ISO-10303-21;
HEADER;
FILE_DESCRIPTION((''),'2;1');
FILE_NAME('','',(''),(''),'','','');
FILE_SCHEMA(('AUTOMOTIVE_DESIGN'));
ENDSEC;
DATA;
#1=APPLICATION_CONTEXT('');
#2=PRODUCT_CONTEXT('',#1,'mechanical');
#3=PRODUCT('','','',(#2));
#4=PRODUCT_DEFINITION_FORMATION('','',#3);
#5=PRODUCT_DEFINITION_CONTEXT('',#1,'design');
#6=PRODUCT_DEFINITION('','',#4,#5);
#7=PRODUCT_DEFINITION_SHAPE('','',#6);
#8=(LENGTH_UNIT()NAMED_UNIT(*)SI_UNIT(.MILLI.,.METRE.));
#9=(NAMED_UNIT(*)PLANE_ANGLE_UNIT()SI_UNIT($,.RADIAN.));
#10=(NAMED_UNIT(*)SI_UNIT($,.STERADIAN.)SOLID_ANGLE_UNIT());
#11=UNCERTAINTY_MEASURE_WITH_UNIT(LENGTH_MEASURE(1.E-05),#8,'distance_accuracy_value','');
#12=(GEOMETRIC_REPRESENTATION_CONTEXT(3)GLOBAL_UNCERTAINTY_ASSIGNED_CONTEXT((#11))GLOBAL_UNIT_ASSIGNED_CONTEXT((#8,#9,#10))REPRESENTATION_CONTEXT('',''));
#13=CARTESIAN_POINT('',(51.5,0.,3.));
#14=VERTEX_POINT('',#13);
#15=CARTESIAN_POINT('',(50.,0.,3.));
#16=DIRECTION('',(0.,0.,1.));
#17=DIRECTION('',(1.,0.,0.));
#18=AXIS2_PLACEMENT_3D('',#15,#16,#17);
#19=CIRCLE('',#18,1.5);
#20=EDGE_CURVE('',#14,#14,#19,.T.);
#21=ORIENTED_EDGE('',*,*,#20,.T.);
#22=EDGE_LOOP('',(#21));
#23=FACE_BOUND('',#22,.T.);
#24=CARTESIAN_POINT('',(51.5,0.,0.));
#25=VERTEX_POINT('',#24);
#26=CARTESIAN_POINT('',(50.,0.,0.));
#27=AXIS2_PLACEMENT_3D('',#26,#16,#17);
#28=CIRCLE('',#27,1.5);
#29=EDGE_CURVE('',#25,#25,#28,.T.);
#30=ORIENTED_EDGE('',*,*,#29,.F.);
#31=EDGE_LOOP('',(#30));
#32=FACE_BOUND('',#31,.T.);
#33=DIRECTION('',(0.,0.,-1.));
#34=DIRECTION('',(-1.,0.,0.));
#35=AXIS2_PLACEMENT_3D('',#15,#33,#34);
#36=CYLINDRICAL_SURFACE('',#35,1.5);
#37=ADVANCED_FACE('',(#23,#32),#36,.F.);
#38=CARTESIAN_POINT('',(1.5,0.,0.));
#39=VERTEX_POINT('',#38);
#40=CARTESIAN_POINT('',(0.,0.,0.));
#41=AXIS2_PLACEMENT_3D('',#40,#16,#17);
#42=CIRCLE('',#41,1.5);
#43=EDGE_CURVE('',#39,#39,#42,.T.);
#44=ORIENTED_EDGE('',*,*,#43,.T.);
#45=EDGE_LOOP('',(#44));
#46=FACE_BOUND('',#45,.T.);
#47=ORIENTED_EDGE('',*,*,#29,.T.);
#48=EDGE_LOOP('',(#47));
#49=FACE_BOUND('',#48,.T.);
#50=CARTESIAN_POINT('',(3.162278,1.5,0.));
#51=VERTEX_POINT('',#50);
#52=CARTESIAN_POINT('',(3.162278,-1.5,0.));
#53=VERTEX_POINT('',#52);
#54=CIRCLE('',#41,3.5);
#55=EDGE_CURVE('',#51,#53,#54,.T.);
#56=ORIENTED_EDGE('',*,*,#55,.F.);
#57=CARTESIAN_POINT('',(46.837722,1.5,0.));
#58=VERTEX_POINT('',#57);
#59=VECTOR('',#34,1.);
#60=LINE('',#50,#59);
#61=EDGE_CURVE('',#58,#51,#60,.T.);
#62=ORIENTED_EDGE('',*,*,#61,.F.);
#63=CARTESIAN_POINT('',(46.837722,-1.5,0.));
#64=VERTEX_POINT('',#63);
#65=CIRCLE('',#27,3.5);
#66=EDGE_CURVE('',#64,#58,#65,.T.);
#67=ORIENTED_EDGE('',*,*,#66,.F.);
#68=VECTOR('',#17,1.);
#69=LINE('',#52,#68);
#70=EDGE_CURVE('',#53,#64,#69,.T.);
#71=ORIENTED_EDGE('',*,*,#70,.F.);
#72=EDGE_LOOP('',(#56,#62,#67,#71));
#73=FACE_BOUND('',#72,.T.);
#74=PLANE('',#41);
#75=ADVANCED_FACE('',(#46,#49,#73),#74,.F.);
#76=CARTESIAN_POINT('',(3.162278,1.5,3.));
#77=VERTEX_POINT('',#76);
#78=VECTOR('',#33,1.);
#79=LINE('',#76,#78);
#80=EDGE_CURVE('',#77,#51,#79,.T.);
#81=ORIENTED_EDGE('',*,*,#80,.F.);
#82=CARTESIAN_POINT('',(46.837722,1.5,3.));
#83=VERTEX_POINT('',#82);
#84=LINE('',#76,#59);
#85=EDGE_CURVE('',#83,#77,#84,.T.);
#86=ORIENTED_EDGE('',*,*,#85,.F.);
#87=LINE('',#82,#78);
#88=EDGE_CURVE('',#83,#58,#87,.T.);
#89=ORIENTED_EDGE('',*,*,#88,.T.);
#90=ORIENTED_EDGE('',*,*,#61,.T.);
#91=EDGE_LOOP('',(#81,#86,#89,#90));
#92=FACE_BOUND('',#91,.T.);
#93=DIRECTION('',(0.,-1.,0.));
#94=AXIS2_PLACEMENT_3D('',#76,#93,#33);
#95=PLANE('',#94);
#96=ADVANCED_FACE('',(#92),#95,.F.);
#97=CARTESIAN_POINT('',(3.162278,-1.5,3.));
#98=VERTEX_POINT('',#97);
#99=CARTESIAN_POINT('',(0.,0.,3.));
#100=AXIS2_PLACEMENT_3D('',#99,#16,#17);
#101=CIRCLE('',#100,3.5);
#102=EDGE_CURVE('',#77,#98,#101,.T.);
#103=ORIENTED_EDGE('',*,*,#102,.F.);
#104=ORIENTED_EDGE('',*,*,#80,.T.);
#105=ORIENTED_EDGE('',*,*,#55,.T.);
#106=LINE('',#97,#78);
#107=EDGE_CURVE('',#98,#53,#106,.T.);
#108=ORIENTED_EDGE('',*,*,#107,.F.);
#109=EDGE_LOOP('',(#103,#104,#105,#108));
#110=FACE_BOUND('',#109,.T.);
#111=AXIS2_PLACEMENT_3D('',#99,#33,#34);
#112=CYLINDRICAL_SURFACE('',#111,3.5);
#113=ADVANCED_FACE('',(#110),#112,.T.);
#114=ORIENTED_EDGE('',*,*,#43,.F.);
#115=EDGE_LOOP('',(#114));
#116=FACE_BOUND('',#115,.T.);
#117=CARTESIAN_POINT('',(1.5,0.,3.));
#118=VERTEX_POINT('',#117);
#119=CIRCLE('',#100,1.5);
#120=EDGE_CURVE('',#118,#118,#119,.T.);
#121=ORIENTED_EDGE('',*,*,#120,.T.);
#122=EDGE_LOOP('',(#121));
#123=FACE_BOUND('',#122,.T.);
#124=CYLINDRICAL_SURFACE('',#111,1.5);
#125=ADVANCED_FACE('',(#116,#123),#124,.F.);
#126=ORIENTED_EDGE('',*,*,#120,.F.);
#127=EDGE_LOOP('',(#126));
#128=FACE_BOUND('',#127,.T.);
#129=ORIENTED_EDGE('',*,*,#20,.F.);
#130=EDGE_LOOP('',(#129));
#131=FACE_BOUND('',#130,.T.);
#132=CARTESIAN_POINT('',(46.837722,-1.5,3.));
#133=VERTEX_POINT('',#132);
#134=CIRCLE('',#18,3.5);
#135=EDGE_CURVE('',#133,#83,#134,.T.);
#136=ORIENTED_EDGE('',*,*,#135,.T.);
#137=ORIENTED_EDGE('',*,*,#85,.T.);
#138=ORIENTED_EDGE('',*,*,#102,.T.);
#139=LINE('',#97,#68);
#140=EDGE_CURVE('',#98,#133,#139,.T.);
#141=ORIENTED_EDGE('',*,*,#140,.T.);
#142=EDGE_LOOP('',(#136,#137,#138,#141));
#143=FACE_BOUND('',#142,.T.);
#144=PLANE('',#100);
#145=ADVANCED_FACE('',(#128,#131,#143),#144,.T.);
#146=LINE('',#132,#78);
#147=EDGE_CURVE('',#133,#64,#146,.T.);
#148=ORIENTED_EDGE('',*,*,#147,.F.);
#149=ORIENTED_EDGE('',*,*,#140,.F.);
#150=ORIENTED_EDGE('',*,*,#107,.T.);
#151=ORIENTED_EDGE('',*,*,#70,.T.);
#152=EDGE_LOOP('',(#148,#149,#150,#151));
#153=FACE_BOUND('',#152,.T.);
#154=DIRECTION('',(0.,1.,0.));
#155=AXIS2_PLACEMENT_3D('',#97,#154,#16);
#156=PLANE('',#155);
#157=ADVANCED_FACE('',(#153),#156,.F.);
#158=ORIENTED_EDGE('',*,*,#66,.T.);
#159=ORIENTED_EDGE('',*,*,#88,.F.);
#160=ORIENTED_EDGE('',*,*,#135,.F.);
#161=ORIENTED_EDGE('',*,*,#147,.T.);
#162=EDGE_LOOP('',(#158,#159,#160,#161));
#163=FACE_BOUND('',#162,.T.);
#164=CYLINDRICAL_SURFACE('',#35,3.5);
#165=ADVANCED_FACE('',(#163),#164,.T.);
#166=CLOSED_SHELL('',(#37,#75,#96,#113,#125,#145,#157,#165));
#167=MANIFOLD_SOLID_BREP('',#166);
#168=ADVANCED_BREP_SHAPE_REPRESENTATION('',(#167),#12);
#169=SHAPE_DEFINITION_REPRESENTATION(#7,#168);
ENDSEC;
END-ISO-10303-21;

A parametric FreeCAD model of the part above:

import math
import FreeCAD as App
import Part
import Sketcher
from FreeCAD import Vector

doc = App.newDocument("Part")
body = doc.addObject("PartDesign::Body", "Body")

sketch1 = doc.addObject("Sketcher::SketchObject", "Sketch")
body.addObject(sketch1)
sketch1.AttachmentSupport = (doc.XY_Plane, [""])
sketch1.MapMode = "FlatFace"
sketch1.addGeometry([
    Part.LineSegment(Vector(46.8, 1.5, 0), Vector(3.2, 1.5, 0)),
    Part.ArcOfCircle(Part.Circle(Vector(0, 0, 0), Vector(0, 0, 1), 3.5), math.radians(25), math.radians(335)),
    Part.LineSegment(Vector(3.2, -1.5, 0), Vector(46.8, -1.5, 0)),
    Part.ArcOfCircle(Part.Circle(Vector(50, 0, 0), Vector(0, 0, 1), 3.5), math.radians(-155), math.radians(155)),
    Part.Circle(Vector(50, 0, 0), Vector(0, 0, 1), 1.5),
    Part.Circle(Vector(0, 0, 0), Vector(0, 0, 1), 1.5),
], False)
sketch1.addConstraint([
    Sketcher.Constraint("Coincident", 0, 2, 1, 1),
    Sketcher.Constraint("Coincident", 1, 2, 2, 1),
    Sketcher.Constraint("Coincident", 2, 2, 3, 1),
    Sketcher.Constraint("Coincident", 3, 2, 0, 1),
    Sketcher.Constraint("Horizontal", 0),
    Sketcher.Constraint("Horizontal", 2),
    Sketcher.Constraint("Coincident", 1, 3, -1, 1),
    Sketcher.Constraint("Coincident", 5, 3, -1, 1),
    Sketcher.Constraint("Coincident", 4, 3, 3, 3),
    Sketcher.Constraint("Equal", 1, 3),
    Sketcher.Constraint("Equal", 4, 5),
    Sketcher.Constraint("Symmetric", 2, 2, 3, 2, -1),
    Sketcher.Constraint("Diameter", 4, 3.0),
    Sketcher.Constraint("Radius", 1, 3.5),
    Sketcher.Constraint("DistanceX", -1, 1, 3, 3, 50.0),
    Sketcher.Constraint("DistanceY", 1, 2, 0, 2, 3.0),
])
pad1 = doc.addObject("PartDesign::Pad", "Pad")
body.addObject(pad1)
pad1.Profile = sketch1
pad1.Length = 3

doc.recompute()
